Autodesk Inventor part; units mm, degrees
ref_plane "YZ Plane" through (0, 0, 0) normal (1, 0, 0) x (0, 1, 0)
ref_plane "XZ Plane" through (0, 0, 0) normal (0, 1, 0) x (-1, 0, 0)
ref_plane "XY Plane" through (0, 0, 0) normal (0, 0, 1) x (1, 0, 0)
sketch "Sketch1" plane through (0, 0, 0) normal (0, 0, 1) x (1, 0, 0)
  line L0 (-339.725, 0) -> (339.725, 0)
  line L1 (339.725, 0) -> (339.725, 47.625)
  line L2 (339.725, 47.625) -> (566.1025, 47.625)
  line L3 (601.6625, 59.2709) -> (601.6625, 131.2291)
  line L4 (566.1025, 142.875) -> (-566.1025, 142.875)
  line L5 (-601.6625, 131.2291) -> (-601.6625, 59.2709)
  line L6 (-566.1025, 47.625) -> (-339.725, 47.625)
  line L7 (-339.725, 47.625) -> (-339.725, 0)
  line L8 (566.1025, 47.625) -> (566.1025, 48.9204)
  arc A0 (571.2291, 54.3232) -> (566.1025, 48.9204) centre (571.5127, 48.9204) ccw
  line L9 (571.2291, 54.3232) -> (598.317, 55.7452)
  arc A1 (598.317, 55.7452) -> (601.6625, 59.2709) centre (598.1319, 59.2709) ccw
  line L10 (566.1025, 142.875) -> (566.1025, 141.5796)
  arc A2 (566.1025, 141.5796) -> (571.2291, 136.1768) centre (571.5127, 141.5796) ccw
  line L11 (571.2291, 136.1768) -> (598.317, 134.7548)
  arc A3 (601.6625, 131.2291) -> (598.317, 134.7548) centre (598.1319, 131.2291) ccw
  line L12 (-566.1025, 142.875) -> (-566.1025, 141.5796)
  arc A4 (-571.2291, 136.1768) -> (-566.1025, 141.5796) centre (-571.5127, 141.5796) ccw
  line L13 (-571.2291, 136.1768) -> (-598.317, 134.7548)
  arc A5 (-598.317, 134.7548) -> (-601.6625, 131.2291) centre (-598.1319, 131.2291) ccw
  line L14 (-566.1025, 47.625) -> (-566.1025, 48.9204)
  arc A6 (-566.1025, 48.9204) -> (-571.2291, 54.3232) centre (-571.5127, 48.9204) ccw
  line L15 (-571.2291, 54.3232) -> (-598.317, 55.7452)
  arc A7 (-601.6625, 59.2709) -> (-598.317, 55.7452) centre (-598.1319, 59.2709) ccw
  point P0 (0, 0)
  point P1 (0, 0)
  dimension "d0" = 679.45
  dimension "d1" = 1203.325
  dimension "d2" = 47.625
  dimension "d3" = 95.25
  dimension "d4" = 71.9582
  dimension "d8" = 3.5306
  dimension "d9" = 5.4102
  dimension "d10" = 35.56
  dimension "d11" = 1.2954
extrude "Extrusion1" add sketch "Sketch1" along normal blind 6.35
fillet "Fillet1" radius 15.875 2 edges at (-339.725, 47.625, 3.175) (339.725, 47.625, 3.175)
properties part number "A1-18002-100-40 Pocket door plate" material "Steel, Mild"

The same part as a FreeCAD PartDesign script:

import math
import FreeCAD as App
import Part
import Sketcher
Q = App.Units.Quantity


def edges_at(feature, points):
    """Names of the edges that pass closest to the given points."""
    edges = feature.Shape.Edges
    near = lambda p: min(range(len(edges)), key=lambda i: edges[i].distToShape(Part.Vertex(*p))[0])
    return sorted({f"Edge{near(p) + 1}" for p in points})

doc = App.newDocument("Part")
body = doc.addObject("PartDesign::Body", "Body")

# Sketch on XY plane
sketch1 = doc.addObject("Sketcher::SketchObject", "Sketch")
body.addObject(sketch1)
sketch1.AttachmentSupport = (doc.XY_Plane, [""])
sketch1.MapMode = "FlatFace"
sketch1.addGeometry(Part.LineSegment(App.Vector(-339.7, 47.6, 0), App.Vector(-339.7, 0, 0)), False)
sketch1.addGeometry(Part.LineSegment(App.Vector(-339.7, 0, 0), App.Vector(339.7, 0, 0)), False)
sketch1.addGeometry(Part.LineSegment(App.Vector(339.7, 0, 0), App.Vector(339.7, 47.6, 0)), False)
sketch1.addGeometry(Part.LineSegment(App.Vector(339.7, 47.6, 0), App.Vector(566.1, 47.6, 0)), False)
sketch1.addGeometry(Part.LineSegment(App.Vector(566.1, 47.6, 0), App.Vector(566.1, 48.9, 0)), False)
sketch1.addGeometry(Part.ArcOfCircle(Part.Circle(App.Vector(571.5, 48.9, 0), App.Vector(0, 0, 1), 5.4), math.radians(93), math.radians(180)), False)
sketch1.addGeometry(Part.LineSegment(App.Vector(571.2, 54.3, 0), App.Vector(598.3, 55.7, 0)), False)
sketch1.addGeometry(Part.ArcOfCircle(Part.Circle(App.Vector(598.1, 59.3, 0), App.Vector(0, 0, 1), 3.5), math.radians(-87), math.radians(0)), False)
sketch1.addGeometry(Part.LineSegment(App.Vector(601.7, 59.3, 0), App.Vector(601.7, 131.2, 0)), False)
sketch1.addGeometry(Part.ArcOfCircle(Part.Circle(App.Vector(598.1, 131.2, 0), App.Vector(0, 0, 1), 3.5), math.radians(0), math.radians(87)), False)
sketch1.addGeometry(Part.LineSegment(App.Vector(598.3, 134.8, 0), App.Vector(571.2, 136.2, 0)), False)
sketch1.addGeometry(Part.ArcOfCircle(Part.Circle(App.Vector(571.5, 141.6, 0), App.Vector(0, 0, 1), 5.4), math.radians(180), math.radians(267)), False)
sketch1.addGeometry(Part.LineSegment(App.Vector(566.1, 141.6, 0), App.Vector(566.1, 142.9, 0)), False)
sketch1.addGeometry(Part.LineSegment(App.Vector(566.1, 142.9, 0), App.Vector(-566.1, 142.9, 0)), False)
sketch1.addGeometry(Part.LineSegment(App.Vector(-566.1, 142.9, 0), App.Vector(-566.1, 141.6, 0)), False)
sketch1.addGeometry(Part.ArcOfCircle(Part.Circle(App.Vector(-571.5, 141.6, 0), App.Vector(0, 0, 1), 5.4), math.radians(-87), math.radians(0)), False)
sketch1.addGeometry(Part.LineSegment(App.Vector(-571.2, 136.2, 0), App.Vector(-598.3, 134.8, 0)), False)
sketch1.addGeometry(Part.ArcOfCircle(Part.Circle(App.Vector(-598.1, 131.2, 0), App.Vector(0, 0, 1), 3.5), math.radians(93), math.radians(180)), False)
sketch1.addGeometry(Part.LineSegment(App.Vector(-601.7, 131.2, 0), App.Vector(-601.7, 59.3, 0)), False)
sketch1.addGeometry(Part.ArcOfCircle(Part.Circle(App.Vector(-598.1, 59.3, 0), App.Vector(0, 0, 1), 3.5), math.radians(180), math.radians(267)), False)
sketch1.addGeometry(Part.LineSegment(App.Vector(-598.3, 55.7, 0), App.Vector(-571.2, 54.3, 0)), False)
sketch1.addGeometry(Part.ArcOfCircle(Part.Circle(App.Vector(-571.5, 48.9, 0), App.Vector(0, 0, 1), 5.4), math.radians(0), math.radians(87)), False)
sketch1.addGeometry(Part.LineSegment(App.Vector(-566.1, 48.9, 0), App.Vector(-566.1, 47.6, 0)), False)
sketch1.addGeometry(Part.LineSegment(App.Vector(-566.1, 47.6, 0), App.Vector(-339.7, 47.6, 0)), False)
sketch1.addConstraint(Sketcher.Constraint("Coincident", 0, 2, 1, 1))
sketch1.addConstraint(Sketcher.Constraint("Coincident", 1, 2, 2, 1))
sketch1.addConstraint(Sketcher.Constraint("Coincident", 2, 2, 3, 1))
sketch1.addConstraint(Sketcher.Constraint("Coincident", 3, 2, 4, 1))
sketch1.addConstraint(Sketcher.Constraint("Tangent", 4, 2, 5, 2))
sketch1.addConstraint(Sketcher.Constraint("Tangent", 5, 1, 6, 1))
sketch1.addConstraint(Sketcher.Constraint("Tangent", 6, 2, 7, 1))
sketch1.addConstraint(Sketcher.Constraint("Tangent", 7, 2, 8, 1))
sketch1.addConstraint(Sketcher.Constraint("Tangent", 8, 2, 9, 1))
sketch1.addConstraint(Sketcher.Constraint("Tangent", 9, 2, 10, 1))
sketch1.addConstraint(Sketcher.Constraint("Tangent", 10, 2, 11, 2))
sketch1.addConstraint(Sketcher.Constraint("Tangent", 11, 1, 12, 1))
sketch1.addConstraint(Sketcher.Constraint("Coincident", 12, 2, 13, 1))
sketch1.addConstraint(Sketcher.Constraint("Coincident", 13, 2, 14, 1))
sketch1.addConstraint(Sketcher.Constraint("Tangent", 14, 2, 15, 2))
sketch1.addConstraint(Sketcher.Constraint("Tangent", 15, 1, 16, 1))
sketch1.addConstraint(Sketcher.Constraint("Tangent", 16, 2, 17, 1))
sketch1.addConstraint(Sketcher.Constraint("Tangent", 17, 2, 18, 1))
sketch1.addConstraint(Sketcher.Constraint("Tangent", 18, 2, 19, 1))
sketch1.addConstraint(Sketcher.Constraint("Tangent", 19, 2, 20, 1))
sketch1.addConstraint(Sketcher.Constraint("Tangent", 20, 2, 21, 2))
sketch1.addConstraint(Sketcher.Constraint("Tangent", 21, 1, 22, 1))
sketch1.addConstraint(Sketcher.Constraint("Coincident", 22, 2, 23, 1))
sketch1.addConstraint(Sketcher.Constraint("Coincident", 23, 2, 0, 1))
sketch1.addConstraint(Sketcher.Constraint("Vertical", 0))
sketch1.addConstraint(Sketcher.Constraint("Horizontal", 1))
sketch1.addConstraint(Sketcher.Constraint("Vertical", 2))
sketch1.addConstraint(Sketcher.Constraint("Horizontal", 3))
sketch1.addConstraint(Sketcher.Constraint("Vertical", 4))
sketch1.addConstraint(Sketcher.Constraint("Vertical", 8))
sketch1.addConstraint(Sketcher.Constraint("Vertical", 12))
sketch1.addConstraint(Sketcher.Constraint("Horizontal", 13))
sketch1.addConstraint(Sketcher.Constraint("Vertical", 14))
sketch1.addConstraint(Sketcher.Constraint("Vertical", 18))
sketch1.addConstraint(Sketcher.Constraint("Vertical", 22))
sketch1.addConstraint(Sketcher.Constraint("Horizontal", 23))
sketch1.addConstraint(Sketcher.Constraint("Equal", 7, 9))
sketch1.addConstraint(Sketcher.Constraint("Equal", 5, 11))
sketch1.addConstraint(Sketcher.Constraint("Equal", 11, 15))
sketch1.addConstraint(Sketcher.Constraint("Equal", 9, 17))
sketch1.addConstraint(Sketcher.Constraint("Equal", 17, 19))
sketch1.addConstraint(Sketcher.Constraint("Equal", 15, 21))
sketch1.addConstraint(Sketcher.Constraint("Symmetric", 0, 2, 1, 2, -1, 1))
sketch1.addConstraint(Sketcher.Constraint("Symmetric", 11, 3, 15, 3, -2))
sketch1.addConstraint(Sketcher.Constraint("Symmetric", 9, 3, 17, 3, -2))
sketch1.addConstraint(Sketcher.Constraint("Symmetric", 5, 3, 21, 3, -2))
sketch1.addConstraint(Sketcher.Constraint("Parallel", 6, 16))
sketch1.addConstraint(Sketcher.Constraint("Parallel", 10, 20))
sketch1.addConstraint(Sketcher.Constraint("Horizontal", 3, 2, 22, 2))
sketch1.addConstraint(Sketcher.Constraint("Vertical", 5, 3, 11, 3))
sketch1.addConstraint(Sketcher.Constraint("Equal", 4, 12))
sketch1.addConstraint(Sketcher.Constraint("Radius", 5, Q("0.213 in")))
sketch1.addConstraint(Sketcher.Constraint("Radius", 7, Q("0.139 in")))
sketch1.addConstraint(Sketcher.Constraint("DistanceX", 1, 1, 1, 2, Q("26.75 in")))
sketch1.addConstraint(Sketcher.Constraint("DistanceX", 4, 2, 7, 2, Q("1.4 in")))
sketch1.addConstraint(Sketcher.Constraint("DistanceY", 0, 2, 0, 1, Q("1.875 in")))
sketch1.addConstraint(Sketcher.Constraint("DistanceY", 4, 1, 4, 2, Q("0.051 in")))
sketch1.addConstraint(Sketcher.Constraint("DistanceY", 8, 1, 8, 2, Q("2.833 in")))
sketch1.addConstraint(Sketcher.Constraint("DistanceX", 13, 2, 13, 1, Q("44.575 in")))
sketch1.addConstraint(Sketcher.Constraint("DistanceY", -1, 1, 11, 3, Q("5.574 in")))
pad1 = doc.addObject("PartDesign::Pad", "Pad")
body.addObject(pad1)
pad1.Profile = sketch1
pad1.Length = Q("0.25 in")
doc.recompute()

fillet = doc.addObject("PartDesign::Fillet", "Fillet")
body.addObject(fillet)
fillet.Base = (pad1, edges_at(pad1, [(-339.725, 47.625, 3.175), (339.725, 47.625, 3.175)]))
fillet.Radius = Q("0.625 in")

doc.recompute()
